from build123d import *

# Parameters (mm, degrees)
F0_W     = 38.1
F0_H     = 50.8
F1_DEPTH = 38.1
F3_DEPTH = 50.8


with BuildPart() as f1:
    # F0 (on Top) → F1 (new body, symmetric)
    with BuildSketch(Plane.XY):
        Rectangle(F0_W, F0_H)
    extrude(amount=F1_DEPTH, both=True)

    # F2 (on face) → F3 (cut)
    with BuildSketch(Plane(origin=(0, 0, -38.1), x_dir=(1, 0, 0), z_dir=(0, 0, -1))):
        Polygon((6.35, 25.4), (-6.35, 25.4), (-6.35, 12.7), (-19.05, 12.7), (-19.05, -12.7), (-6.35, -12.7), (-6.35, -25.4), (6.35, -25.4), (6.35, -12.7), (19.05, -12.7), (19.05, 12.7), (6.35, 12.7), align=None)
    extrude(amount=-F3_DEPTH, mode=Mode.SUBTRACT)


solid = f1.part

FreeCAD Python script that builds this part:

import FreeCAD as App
import Part
import Sketcher

V = App.Vector
Q = App.Units.Quantity


def add_polygon(sketch, points):
    """Adds a closed chain of lines whose ends are joined by coincident constraints."""
    first, n = sketch.GeometryCount, len(points)
    for a, b in zip(points, points[1:] + points[:1]):
        sketch.addGeometry(Part.LineSegment(App.Vector(*a, 0), App.Vector(*b, 0)), False)
    for i in range(n):
        sketch.addConstraint(Sketcher.Constraint("Coincident", first + i, 2, first + (i + 1) % n, 1))

doc = App.newDocument("Part")
body = doc.addObject("PartDesign::Body", "Body")

sketch1 = body.newObject("Sketcher::SketchObject", "Sketch")
sketch1.AttachmentSupport = (doc.getObject("XY_Plane"), [""])
sketch1.MapMode = "FlatFace"
add_polygon(sketch1, [(-19, 25), (-19, -25), (19, -25), (19, 25)])
sketch1.addConstraint([
    Sketcher.Constraint("Vertical", 0),
    Sketcher.Constraint("Horizontal", 1),
    Sketcher.Constraint("Vertical", 2),
    Sketcher.Constraint("Horizontal", 3),
    Sketcher.Constraint("Symmetric", 0, 2, 2, 2, -1, 1),
    Sketcher.Constraint("DistanceY", 0, 2, 0, 1, Q("2 in")),
    Sketcher.Constraint("DistanceX", 1, 1, 1, 2, Q("1.5 in")),
])
pad1 = body.newObject("PartDesign::Pad", "Pad")
pad1.Profile = sketch1
pad1.Length = Q("3 in")
pad1.Midplane = True

sketch2 = body.newObject("Sketcher::SketchObject", "Sketch001")
sketch2.AttachmentSupport = (doc.getObject("XY_Plane"), [""])
sketch2.MapMode = "FlatFace"
sketch2.AttachmentOffset = App.Placement(V(0, 0, -1.5 * 25.4), App.Rotation())
add_polygon(sketch2, [(6, -25), (-6, -25), (-6, -13), (-19, -13), (-19, 13), (-6, 13), (-6, 25), (6, 25), (6, 13), (19, 13), (19, -13), (6, -13)])
sketch2.addConstraint([
    Sketcher.Constraint("Horizontal", 0),
    Sketcher.Constraint("Vertical", 1),
    Sketcher.Constraint("Horizontal", 2),
    Sketcher.Constraint("Vertical", 3),
    Sketcher.Constraint("Horizontal", 4),
    Sketcher.Constraint("Vertical", 5),
    Sketcher.Constraint("Horizontal", 6),
    Sketcher.Constraint("Vertical", 7),
    Sketcher.Constraint("Horizontal", 8),
    Sketcher.Constraint("Vertical", 9),
    Sketcher.Constraint("Horizontal", 10),
    Sketcher.Constraint("Vertical", 11),
    Sketcher.Constraint("Symmetric", 0, 2, 6, 2, -1, 1),
    Sketcher.Constraint("Symmetric", 2, 2, 8, 2, -1, 1),
    Sketcher.Constraint("Symmetric", 4, 2, 10, 2, -1, 1),
    Sketcher.Constraint("Symmetric", 4, 2, 7, 2, -2),
    Sketcher.Constraint("Equal", 0, 2),
    Sketcher.Constraint("Equal", 10, 1),
    Sketcher.Constraint("DistanceY", 3, 1, 3, 2, Q("1 in")),
    Sketcher.Constraint("DistanceX", 0, 2, 0, 1, Q("0.5 in")),
])
pocket1 = body.newObject("PartDesign::Pocket", "Pocket")
pocket1.Profile = sketch2
pocket1.Length = Q("2 in")
pocket1.Reversed = True

doc.recompute()
